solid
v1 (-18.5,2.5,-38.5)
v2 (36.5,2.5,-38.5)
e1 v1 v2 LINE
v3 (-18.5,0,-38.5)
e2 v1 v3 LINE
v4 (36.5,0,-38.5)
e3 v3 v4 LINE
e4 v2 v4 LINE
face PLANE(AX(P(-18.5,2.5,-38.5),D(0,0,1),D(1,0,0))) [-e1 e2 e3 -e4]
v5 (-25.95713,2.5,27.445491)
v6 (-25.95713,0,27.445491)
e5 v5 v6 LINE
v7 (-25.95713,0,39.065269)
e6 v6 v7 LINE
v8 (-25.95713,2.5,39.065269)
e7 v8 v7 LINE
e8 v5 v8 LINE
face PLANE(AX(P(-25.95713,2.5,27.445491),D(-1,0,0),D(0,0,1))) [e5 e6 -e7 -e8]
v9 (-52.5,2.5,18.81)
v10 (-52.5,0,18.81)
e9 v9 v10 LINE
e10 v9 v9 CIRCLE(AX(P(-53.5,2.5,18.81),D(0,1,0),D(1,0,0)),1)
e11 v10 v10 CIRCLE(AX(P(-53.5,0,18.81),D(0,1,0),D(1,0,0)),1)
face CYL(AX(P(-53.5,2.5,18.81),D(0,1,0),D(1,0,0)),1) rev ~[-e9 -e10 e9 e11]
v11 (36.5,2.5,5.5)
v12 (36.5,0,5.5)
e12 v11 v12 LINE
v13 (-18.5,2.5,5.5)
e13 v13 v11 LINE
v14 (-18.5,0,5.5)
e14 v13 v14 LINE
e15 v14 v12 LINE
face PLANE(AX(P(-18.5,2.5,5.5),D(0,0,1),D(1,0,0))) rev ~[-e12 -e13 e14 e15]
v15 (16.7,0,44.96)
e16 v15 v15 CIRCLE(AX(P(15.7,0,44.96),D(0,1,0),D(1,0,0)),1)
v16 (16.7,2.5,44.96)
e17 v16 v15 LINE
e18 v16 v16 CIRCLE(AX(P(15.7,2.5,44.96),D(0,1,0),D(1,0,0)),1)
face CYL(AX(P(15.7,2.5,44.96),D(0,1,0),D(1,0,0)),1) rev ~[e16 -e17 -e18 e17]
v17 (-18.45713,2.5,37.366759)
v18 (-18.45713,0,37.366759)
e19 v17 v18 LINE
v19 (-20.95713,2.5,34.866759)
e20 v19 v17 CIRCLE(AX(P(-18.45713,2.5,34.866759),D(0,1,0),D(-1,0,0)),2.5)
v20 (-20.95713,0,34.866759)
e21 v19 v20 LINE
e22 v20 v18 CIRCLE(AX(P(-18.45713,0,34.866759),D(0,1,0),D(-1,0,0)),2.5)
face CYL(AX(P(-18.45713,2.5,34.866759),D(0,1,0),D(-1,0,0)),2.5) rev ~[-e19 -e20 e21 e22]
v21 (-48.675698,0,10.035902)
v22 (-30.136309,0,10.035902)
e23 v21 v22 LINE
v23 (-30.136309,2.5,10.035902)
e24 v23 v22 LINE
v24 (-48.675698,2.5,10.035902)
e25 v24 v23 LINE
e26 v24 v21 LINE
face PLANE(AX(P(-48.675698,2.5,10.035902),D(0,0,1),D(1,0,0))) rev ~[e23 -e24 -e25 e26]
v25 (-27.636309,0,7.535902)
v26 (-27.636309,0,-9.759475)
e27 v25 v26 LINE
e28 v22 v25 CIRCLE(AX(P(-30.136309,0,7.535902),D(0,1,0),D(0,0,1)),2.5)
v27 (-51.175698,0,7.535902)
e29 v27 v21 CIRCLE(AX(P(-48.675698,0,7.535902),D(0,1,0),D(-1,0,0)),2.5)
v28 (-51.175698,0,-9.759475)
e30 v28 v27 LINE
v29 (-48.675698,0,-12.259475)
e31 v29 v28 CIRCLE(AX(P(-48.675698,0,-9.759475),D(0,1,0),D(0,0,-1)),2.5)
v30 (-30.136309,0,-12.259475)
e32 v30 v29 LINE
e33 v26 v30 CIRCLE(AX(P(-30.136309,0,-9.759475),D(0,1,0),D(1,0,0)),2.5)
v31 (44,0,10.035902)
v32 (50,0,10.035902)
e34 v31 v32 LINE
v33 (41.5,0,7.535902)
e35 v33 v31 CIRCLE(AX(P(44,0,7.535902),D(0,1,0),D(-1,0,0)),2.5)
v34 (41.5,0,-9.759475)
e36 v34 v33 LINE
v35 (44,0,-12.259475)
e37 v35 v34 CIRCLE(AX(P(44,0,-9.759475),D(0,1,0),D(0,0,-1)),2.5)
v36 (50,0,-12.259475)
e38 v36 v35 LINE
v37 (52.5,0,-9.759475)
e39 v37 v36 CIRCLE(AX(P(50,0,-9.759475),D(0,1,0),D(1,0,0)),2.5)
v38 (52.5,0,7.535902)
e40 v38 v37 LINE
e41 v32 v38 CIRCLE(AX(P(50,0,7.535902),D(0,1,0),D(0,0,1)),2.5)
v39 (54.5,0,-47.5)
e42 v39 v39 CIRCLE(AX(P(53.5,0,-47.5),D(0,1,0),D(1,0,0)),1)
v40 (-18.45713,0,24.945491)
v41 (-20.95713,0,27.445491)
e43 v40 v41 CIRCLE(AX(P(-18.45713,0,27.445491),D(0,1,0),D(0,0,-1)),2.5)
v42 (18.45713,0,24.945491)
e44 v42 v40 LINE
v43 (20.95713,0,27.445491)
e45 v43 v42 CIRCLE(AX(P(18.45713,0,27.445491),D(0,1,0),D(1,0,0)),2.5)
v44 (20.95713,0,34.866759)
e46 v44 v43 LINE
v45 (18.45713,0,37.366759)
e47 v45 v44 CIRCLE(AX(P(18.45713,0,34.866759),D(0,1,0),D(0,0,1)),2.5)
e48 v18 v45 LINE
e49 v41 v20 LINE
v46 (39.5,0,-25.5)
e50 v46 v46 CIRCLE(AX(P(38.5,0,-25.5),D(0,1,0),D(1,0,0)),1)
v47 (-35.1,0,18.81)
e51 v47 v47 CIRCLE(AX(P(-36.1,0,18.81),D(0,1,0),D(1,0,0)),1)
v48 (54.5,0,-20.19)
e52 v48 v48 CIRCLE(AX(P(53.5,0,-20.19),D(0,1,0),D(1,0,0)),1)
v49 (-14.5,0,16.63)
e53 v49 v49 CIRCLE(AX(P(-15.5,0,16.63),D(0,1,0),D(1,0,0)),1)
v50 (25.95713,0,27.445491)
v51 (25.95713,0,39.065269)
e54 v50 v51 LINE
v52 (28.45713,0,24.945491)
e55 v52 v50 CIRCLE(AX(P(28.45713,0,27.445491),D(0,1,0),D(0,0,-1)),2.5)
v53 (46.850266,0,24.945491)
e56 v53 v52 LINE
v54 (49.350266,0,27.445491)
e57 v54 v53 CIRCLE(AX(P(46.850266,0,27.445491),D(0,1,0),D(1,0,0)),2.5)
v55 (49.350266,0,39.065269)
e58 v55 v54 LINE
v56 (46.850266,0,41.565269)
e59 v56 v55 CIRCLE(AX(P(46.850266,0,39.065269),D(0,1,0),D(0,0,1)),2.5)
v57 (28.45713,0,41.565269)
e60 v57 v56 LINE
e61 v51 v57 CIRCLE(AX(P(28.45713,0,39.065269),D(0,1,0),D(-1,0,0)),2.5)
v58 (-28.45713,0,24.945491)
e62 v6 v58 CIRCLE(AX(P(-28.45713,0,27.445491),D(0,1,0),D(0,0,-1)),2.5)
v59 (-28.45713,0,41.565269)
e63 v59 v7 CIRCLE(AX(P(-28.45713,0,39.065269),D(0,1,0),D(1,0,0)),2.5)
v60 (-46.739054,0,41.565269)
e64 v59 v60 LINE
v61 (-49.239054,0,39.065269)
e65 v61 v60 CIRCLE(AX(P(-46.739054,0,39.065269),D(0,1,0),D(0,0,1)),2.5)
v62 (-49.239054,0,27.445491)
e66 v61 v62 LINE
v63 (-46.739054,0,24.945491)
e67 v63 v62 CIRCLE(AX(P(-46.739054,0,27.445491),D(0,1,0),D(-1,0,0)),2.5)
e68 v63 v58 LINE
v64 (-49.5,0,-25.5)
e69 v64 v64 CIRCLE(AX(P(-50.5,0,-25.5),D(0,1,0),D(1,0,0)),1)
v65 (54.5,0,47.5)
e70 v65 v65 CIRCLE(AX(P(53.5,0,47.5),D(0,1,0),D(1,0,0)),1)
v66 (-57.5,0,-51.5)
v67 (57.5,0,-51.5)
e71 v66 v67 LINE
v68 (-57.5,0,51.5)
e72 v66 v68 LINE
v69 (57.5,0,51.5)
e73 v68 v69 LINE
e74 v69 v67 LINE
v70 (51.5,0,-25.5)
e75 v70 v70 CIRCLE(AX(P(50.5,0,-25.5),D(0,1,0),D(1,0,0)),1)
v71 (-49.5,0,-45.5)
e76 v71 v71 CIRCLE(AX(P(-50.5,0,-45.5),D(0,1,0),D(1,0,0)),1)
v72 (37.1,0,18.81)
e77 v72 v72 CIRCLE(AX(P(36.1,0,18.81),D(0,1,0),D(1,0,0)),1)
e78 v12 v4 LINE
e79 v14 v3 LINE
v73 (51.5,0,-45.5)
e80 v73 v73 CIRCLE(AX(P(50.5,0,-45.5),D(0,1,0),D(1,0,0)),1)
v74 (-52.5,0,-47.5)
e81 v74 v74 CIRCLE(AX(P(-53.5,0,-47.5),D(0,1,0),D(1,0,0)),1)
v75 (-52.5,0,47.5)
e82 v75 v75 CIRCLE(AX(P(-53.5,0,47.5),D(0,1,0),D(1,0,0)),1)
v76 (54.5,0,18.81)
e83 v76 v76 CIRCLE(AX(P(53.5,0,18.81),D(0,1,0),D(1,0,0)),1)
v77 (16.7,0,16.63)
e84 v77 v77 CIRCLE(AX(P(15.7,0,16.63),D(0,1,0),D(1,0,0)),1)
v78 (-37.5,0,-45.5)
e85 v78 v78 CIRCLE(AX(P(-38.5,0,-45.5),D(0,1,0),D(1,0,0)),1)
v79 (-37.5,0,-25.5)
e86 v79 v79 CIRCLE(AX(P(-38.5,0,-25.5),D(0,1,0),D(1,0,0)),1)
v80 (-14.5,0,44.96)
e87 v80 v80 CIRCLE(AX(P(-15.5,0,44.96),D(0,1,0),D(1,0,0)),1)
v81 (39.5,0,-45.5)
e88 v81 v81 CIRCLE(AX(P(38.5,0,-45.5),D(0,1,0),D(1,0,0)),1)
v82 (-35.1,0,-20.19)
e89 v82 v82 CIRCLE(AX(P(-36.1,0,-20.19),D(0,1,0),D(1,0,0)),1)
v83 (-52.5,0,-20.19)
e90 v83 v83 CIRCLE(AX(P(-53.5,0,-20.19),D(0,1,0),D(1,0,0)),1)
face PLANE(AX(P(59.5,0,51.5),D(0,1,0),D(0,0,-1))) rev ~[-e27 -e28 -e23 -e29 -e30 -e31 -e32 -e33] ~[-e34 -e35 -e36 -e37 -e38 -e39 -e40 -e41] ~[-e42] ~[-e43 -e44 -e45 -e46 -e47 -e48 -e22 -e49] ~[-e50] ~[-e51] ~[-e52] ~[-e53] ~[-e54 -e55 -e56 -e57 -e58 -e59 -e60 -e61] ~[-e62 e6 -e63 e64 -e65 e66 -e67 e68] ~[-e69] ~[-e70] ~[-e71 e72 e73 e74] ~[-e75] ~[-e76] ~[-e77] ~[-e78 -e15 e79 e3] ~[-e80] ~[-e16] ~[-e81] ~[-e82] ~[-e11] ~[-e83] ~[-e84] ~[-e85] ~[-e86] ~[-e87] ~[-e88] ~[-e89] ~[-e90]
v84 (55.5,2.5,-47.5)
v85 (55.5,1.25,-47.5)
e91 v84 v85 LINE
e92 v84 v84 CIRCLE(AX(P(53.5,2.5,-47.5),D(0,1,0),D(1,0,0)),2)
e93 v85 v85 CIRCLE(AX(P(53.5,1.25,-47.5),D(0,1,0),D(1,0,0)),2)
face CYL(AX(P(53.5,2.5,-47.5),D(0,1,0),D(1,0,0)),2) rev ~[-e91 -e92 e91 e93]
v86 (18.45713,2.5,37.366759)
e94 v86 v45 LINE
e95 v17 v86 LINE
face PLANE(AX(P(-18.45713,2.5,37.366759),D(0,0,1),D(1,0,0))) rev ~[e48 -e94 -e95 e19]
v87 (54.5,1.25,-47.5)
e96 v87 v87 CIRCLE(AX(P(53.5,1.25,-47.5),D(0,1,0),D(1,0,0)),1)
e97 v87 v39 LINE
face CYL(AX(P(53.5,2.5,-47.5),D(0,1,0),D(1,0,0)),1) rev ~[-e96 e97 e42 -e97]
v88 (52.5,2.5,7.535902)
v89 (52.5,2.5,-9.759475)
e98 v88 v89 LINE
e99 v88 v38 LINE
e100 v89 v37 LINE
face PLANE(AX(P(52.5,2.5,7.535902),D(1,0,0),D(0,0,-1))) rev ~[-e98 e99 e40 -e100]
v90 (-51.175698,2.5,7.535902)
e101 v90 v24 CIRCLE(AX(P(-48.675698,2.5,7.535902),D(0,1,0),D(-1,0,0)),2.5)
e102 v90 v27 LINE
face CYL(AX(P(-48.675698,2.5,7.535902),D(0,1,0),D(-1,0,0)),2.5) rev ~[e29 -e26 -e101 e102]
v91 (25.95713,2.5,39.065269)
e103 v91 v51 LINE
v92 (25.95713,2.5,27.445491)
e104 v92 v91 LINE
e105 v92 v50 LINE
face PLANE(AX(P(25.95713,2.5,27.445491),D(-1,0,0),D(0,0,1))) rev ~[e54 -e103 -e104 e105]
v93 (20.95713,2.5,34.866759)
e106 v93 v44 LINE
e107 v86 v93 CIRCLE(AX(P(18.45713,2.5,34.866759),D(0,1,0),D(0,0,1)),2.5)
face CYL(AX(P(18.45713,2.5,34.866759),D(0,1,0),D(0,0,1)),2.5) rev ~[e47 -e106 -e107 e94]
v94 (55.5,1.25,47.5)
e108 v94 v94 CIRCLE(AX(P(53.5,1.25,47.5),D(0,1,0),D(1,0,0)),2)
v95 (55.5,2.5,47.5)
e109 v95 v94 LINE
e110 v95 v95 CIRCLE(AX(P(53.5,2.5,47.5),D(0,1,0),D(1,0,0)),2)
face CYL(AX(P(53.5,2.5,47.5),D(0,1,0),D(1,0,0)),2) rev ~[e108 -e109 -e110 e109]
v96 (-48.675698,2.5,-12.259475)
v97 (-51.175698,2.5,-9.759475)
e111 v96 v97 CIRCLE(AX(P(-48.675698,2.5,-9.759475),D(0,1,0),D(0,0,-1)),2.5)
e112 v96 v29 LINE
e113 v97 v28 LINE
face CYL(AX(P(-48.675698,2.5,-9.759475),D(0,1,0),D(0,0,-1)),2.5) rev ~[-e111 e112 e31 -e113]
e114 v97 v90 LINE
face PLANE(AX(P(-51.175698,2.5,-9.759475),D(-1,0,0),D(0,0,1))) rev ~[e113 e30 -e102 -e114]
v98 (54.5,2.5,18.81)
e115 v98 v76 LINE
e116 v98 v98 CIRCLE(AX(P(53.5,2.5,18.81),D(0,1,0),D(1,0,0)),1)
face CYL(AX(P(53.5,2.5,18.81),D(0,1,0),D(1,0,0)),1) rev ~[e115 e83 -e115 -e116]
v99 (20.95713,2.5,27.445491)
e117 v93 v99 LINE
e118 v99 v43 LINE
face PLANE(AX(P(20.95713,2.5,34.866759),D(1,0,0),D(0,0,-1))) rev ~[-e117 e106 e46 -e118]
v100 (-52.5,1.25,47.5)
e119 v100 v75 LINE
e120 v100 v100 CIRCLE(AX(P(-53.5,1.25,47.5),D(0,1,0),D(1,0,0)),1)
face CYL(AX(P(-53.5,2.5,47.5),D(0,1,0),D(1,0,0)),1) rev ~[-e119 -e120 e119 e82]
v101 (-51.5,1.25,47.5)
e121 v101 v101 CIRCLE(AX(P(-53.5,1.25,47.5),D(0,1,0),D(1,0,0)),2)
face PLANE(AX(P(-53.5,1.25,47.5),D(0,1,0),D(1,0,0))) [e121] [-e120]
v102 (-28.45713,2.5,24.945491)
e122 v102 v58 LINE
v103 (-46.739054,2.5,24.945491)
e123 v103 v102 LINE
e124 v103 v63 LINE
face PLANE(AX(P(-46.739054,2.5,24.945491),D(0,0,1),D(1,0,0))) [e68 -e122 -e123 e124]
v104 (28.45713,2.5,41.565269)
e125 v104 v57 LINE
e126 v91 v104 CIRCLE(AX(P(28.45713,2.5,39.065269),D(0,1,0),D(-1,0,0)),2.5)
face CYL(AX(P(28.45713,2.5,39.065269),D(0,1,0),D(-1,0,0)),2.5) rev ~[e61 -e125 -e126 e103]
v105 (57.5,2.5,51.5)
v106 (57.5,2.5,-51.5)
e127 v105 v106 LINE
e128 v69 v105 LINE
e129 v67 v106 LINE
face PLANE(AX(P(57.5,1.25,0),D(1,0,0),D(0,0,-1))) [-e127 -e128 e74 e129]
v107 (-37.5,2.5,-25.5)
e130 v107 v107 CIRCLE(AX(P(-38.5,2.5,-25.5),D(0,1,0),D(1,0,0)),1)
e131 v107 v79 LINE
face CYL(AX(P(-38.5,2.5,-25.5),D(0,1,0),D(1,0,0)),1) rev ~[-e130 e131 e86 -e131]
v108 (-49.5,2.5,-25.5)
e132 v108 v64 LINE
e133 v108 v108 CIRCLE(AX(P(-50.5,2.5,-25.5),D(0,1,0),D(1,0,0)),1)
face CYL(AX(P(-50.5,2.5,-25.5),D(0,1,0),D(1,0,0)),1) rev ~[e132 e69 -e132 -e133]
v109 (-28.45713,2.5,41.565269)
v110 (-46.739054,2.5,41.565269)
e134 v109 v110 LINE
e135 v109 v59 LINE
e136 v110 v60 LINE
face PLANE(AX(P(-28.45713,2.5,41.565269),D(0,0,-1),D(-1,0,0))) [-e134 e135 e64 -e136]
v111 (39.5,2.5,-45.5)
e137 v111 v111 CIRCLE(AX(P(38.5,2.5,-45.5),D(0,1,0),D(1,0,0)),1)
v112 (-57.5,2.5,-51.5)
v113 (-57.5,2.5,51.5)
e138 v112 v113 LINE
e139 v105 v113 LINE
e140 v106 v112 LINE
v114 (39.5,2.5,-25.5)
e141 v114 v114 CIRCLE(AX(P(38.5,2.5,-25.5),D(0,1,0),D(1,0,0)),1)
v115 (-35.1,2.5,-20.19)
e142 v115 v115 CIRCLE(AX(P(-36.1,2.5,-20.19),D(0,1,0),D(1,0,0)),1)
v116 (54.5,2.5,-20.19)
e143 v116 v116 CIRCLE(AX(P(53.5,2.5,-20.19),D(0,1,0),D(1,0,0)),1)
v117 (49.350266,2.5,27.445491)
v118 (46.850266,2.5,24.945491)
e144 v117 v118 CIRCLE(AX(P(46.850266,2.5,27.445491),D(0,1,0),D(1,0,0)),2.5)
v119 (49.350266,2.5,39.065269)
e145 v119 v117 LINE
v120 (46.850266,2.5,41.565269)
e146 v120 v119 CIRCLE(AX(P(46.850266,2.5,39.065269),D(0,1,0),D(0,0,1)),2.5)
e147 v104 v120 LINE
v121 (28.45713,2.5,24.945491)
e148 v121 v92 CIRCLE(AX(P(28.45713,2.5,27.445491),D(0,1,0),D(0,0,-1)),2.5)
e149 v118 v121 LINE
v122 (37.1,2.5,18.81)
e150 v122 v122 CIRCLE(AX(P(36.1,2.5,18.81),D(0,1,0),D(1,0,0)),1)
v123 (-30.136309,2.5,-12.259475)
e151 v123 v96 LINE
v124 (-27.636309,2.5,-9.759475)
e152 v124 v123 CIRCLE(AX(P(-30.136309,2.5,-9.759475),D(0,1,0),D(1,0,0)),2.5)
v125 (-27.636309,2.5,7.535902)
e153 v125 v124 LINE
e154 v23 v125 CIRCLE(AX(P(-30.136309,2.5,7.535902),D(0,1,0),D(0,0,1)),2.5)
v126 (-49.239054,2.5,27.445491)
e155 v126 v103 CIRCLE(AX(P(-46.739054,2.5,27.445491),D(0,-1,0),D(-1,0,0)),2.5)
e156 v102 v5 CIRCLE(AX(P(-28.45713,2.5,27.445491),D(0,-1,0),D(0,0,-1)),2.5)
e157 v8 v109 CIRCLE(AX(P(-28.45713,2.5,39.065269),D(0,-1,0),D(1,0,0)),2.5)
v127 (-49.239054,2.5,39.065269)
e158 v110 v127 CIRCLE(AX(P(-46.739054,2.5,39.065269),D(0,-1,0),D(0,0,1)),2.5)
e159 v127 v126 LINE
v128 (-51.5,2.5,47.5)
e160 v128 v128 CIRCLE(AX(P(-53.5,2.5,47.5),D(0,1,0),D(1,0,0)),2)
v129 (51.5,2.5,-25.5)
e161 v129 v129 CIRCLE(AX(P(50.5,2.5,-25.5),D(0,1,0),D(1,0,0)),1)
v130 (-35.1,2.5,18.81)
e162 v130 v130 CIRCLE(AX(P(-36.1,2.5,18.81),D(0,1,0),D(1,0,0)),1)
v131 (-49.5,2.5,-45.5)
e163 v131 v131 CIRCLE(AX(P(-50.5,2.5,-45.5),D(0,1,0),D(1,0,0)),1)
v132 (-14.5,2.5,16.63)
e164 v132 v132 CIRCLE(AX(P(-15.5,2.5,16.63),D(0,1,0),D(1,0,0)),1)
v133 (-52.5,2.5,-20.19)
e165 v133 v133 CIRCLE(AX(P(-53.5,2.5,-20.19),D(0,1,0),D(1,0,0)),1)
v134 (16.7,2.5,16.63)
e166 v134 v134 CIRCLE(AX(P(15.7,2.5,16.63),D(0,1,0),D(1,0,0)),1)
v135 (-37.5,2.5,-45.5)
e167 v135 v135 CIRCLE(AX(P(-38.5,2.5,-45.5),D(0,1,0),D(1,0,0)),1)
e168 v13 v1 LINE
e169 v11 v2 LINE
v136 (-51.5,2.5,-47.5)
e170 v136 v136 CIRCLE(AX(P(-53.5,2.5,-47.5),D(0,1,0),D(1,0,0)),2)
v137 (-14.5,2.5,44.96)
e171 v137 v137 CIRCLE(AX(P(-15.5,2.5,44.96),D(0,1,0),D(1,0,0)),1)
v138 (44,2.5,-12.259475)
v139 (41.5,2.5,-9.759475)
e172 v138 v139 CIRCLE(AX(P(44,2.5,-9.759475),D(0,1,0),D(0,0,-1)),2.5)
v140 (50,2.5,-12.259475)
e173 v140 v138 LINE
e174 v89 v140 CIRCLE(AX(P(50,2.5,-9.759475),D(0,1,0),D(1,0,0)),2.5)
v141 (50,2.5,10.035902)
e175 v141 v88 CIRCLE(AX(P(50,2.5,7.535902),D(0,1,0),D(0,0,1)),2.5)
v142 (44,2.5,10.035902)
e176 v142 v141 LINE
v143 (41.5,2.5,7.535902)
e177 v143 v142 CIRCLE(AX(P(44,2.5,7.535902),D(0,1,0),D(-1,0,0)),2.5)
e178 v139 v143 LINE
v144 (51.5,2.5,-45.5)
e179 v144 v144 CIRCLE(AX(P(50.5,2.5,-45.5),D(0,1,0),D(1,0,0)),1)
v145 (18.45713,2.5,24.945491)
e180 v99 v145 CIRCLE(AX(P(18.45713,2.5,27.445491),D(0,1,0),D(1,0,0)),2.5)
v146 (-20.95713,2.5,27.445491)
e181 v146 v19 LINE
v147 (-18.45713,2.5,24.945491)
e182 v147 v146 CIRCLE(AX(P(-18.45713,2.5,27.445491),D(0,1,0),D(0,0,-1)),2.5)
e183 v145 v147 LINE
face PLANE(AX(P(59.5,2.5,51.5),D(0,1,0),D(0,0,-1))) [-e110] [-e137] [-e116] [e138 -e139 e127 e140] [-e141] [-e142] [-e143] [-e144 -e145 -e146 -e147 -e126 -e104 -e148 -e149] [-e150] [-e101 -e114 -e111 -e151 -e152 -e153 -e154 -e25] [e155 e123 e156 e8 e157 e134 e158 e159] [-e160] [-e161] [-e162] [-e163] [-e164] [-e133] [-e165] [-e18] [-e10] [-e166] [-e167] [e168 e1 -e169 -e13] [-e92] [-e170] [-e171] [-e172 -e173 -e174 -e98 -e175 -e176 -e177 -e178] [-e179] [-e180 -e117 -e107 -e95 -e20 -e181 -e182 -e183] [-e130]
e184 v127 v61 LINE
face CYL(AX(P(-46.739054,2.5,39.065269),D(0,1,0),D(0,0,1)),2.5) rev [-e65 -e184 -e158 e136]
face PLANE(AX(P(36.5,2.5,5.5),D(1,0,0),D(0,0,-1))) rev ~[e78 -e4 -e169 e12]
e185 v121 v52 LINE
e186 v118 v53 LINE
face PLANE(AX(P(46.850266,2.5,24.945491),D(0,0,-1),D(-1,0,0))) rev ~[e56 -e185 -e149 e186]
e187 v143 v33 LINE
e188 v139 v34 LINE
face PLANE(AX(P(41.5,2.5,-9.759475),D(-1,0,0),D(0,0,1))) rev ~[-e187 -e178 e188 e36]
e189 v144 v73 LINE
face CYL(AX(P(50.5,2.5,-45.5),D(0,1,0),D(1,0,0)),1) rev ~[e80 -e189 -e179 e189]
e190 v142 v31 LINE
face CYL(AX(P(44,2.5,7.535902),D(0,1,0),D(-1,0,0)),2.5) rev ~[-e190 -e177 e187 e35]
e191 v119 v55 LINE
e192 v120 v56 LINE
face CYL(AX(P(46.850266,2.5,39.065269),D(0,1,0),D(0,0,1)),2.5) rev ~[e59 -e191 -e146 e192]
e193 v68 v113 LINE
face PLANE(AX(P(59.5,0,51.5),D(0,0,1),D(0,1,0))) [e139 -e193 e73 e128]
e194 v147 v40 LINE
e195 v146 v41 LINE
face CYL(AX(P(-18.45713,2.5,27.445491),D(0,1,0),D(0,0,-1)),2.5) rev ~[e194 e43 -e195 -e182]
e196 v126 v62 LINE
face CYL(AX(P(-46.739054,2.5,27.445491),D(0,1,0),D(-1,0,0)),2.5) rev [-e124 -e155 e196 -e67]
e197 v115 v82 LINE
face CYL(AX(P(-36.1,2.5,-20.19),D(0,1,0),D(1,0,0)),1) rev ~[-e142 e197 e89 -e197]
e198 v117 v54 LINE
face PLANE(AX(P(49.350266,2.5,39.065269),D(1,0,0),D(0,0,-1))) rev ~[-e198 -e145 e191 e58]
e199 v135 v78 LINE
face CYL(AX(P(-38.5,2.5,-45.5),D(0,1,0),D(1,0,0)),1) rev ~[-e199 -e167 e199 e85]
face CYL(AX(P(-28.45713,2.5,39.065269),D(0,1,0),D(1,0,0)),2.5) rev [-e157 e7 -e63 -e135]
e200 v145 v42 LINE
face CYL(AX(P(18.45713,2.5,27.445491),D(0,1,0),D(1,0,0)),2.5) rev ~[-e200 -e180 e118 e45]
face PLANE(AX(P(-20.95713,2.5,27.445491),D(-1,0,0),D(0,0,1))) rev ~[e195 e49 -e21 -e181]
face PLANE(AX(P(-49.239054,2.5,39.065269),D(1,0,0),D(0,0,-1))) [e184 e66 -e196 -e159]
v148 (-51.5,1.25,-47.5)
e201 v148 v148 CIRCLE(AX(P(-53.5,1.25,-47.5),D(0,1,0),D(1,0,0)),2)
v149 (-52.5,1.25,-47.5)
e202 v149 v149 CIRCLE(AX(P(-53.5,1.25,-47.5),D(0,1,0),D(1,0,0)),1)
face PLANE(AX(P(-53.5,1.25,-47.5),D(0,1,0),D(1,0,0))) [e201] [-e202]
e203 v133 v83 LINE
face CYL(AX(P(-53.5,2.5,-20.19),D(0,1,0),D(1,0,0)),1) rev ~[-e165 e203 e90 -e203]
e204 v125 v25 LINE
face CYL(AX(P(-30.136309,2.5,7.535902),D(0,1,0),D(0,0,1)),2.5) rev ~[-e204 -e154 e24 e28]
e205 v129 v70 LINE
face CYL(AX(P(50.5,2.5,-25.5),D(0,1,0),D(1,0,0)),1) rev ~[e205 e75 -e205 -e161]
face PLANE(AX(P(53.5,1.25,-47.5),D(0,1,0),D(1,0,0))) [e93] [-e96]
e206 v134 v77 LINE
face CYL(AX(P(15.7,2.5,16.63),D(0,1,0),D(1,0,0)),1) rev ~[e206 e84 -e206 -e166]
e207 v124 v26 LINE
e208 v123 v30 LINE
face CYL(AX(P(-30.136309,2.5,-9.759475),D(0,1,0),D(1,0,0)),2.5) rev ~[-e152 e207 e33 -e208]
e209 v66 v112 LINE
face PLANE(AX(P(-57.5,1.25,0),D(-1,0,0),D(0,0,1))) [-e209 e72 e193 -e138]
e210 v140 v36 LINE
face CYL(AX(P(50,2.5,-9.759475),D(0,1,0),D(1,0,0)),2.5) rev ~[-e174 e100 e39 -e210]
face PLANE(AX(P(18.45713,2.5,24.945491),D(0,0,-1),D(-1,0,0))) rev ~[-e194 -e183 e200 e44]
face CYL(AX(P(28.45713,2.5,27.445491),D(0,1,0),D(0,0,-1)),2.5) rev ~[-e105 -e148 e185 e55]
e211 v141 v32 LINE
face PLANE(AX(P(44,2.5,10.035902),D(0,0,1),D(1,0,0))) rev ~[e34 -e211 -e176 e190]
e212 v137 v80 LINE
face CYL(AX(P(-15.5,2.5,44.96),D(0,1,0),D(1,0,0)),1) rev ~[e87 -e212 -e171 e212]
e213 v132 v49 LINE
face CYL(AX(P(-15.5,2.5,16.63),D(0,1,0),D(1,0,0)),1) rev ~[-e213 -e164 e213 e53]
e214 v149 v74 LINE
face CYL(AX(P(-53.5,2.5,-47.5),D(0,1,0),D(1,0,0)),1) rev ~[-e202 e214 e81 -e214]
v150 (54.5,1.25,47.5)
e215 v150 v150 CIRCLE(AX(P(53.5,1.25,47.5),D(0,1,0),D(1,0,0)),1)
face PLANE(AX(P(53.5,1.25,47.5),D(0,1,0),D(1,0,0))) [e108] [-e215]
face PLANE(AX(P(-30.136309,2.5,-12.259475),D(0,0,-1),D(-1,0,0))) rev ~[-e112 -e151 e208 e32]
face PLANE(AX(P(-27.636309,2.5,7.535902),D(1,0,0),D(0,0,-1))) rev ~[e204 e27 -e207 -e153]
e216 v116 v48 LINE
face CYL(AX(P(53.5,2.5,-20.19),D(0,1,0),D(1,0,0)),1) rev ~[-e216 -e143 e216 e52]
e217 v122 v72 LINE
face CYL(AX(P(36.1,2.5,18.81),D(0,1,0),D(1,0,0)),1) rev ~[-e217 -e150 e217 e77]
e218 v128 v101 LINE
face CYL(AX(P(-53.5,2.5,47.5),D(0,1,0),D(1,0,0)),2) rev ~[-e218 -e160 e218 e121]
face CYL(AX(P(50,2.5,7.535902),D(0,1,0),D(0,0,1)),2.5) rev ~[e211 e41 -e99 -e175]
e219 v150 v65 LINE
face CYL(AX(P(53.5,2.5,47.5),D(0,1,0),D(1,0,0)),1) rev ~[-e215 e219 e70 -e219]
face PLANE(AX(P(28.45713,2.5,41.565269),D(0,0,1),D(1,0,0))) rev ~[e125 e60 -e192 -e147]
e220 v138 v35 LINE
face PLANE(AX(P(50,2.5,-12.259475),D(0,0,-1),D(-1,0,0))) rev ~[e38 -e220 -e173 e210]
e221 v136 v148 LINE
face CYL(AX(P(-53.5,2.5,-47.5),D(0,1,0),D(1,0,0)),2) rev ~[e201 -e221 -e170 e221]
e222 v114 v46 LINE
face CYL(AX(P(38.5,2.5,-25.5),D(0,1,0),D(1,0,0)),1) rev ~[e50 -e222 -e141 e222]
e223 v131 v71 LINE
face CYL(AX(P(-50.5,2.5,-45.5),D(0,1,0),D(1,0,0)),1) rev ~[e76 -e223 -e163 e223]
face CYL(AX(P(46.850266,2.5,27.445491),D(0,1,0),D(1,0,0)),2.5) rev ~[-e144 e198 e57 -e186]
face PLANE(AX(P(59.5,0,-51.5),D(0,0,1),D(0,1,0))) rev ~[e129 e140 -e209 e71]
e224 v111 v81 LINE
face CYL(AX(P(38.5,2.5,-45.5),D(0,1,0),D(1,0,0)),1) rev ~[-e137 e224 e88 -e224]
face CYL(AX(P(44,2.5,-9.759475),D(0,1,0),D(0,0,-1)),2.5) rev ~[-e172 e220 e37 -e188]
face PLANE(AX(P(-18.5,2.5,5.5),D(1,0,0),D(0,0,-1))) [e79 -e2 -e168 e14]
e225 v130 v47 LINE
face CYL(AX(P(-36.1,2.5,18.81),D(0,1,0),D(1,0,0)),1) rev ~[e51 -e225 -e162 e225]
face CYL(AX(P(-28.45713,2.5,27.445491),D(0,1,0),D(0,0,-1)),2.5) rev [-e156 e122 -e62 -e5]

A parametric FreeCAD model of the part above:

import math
import FreeCAD as App
import Part
import Sketcher
Q = App.Units.Quantity


def add_polygon(sketch, points):
    """Adds a closed chain of lines whose ends are joined by coincident constraints."""
    first, n = sketch.GeometryCount, len(points)
    for a, b in zip(points, points[1:] + points[:1]):
        sketch.addGeometry(Part.LineSegment(App.Vector(*a, 0), App.Vector(*b, 0)), False)
    for i in range(n):
        sketch.addConstraint(Sketcher.Constraint("Coincident", first + i, 2, first + (i + 1) % n, 1))

doc = App.newDocument("Part")
params = doc.addObject("Spreadsheet::Sheet", "Params")
for row, (alias, value) in enumerate([
    ("sketch1_width", "119 mm"),
    ("sketch1_height", "103 mm"),
    ("pad1_length", "2.5 mm"),
    ("sketch2_width", "55 mm"),
    ("sketch2_height", "44 mm"),
    ("pocket1_length", "10 mm"),
    ("sketch3_height", "103 mm"),
    ("sketch3_width", "2.5 mm"),
    ("pad2_length", "1.5 mm"),
    ("sketch4_height", "103 mm"),
    ("sketch4_width", "2.5 mm"),
    ("pad3_length", "1.5 mm"),
    ("sketch5_height", "103 mm"),
    ("sketch5_width", "2.5 mm"),
    ("pocket2_length", "3.5 mm"),
    ("sketch6_height", "103 mm"),
    ("sketch6_width", "2.5 mm"),
    ("pocket3_length", "3.5 mm"),
    ("sketch7_diameter", "2 mm"),
    ("pocket4_length", "10 mm"),
    ("sketch8_diameter", "2 mm"),
    ("pocket5_length", "10 mm"),
    ("sketch9_diameter", "4 mm"),
    ("pocket6_length", "1.25 mm"),
    ("sketch10_diameter", "2 mm"),
    ("pocket7_length", "11 mm"),
    ("sketch11_radius", "2.5 mm"),
    ("sketch11_width", "6 mm"),
    ("pocket8_length", "11 mm"),
], start=1):
    params.set(f"A{row}", alias)
    params.set(f"B{row}", "=" + value)
    params.setAlias(f"B{row}", alias)

body = doc.addObject("PartDesign::Body", "Body")

# Sketch on XZ plane
sketch1 = body.newObject("Sketcher::SketchObject", "Sketch")
sketch1.AttachmentSupport = (doc.getObject("XZ_Plane"), [""])
sketch1.MapMode = "FlatFace"
add_polygon(sketch1, [(-59.5, -51.5), (-59.5, 51.5), (59.5, 51.5), (59.5, -51.5)])  # lines 0-3
sketch1.addConstraint([
    Sketcher.Constraint("Vertical", 0),
    Sketcher.Constraint("Horizontal", 1),
    Sketcher.Constraint("Vertical", 2),
    Sketcher.Constraint("Horizontal", 3),
    Sketcher.Constraint("Symmetric", 0, 2, 2, 2, -1, 1),
    Sketcher.Constraint("DistanceX", 1, 1, 1, 2, Q("119 mm")),
    Sketcher.Constraint("DistanceY", 0, 1, 0, 2, Q("103 mm")),
])
sketch1.setExpression("Constraints[9]", "Params.sketch1_width")
sketch1.setExpression("Constraints[10]", "Params.sketch1_height")
pad1 = body.newObject("PartDesign::Pad", "Pad")
pad1.Profile = sketch1
pad1.setExpression("Length", "Params.pad1_length")
pad1.Reversed = True

# Sketch on XZ plane
sketch2 = body.newObject("Sketcher::SketchObject", "Sketch001")
sketch2.AttachmentSupport = (doc.getObject("XZ_Plane"), [""])
sketch2.MapMode = "FlatFace"
sketch2.AttachmentOffset = App.Placement(App.Vector(0, 0, -2.5), App.Rotation())
add_polygon(sketch2, [(-18.5, -38.5), (-18.5, 5.5), (36.5, 5.5), (36.5, -38.5)])  # lines 0-3
sketch2.addConstraint([
    Sketcher.Constraint("Vertical", 0),
    Sketcher.Constraint("Horizontal", 1),
    Sketcher.Constraint("Vertical", 2),
    Sketcher.Constraint("Horizontal", 3),
    Sketcher.Constraint("DistanceX", 1, 1, 1, 2, Q("55 mm")),
    Sketcher.Constraint("DistanceY", 0, 1, 0, 2, Q("44 mm")),
    Sketcher.Constraint("DistanceX", 0, 2, -1, 1, Q("18.5 mm")),
    Sketcher.Constraint("DistanceY", -1, 1, 0, 2, Q("5.5 mm")),
])
sketch2.setExpression("Constraints[8]", "Params.sketch2_width")
sketch2.setExpression("Constraints[9]", "Params.sketch2_height")
pocket1 = body.newObject("PartDesign::Pocket", "Pocket")
pocket1.Profile = sketch2
pocket1.setExpression("Length", "Params.pocket1_length")
pocket1.Reversed = True

# Sketch on YZ plane
sketch3 = body.newObject("Sketcher::SketchObject", "Sketch002")
sketch3.AttachmentSupport = (doc.getObject("YZ_Plane"), [""])
sketch3.MapMode = "FlatFace"
sketch3.AttachmentOffset = App.Placement(App.Vector(0, 0, -59.5), App.Rotation())
add_polygon(sketch3, [(2.5, -51.5), (0, -51.5), (0, 51.5), (2.5, 51.5)])  # lines 0-3
sketch3.addConstraint([
    Sketcher.Constraint("Horizontal", 0),
    Sketcher.Constraint("Vertical", 1),
    Sketcher.Constraint("Horizontal", 2),
    Sketcher.Constraint("Vertical", 3),
    Sketcher.Constraint("Symmetric", 0, 2, 1, 2, -1, 1),
    Sketcher.Constraint("DistanceY", 1, 1, 1, 2, Q("103 mm")),
    Sketcher.Constraint("DistanceX", 0, 2, 0, 1, Q("2.5 mm")),
])
sketch3.setExpression("Constraints[9]", "Params.sketch3_height")
sketch3.setExpression("Constraints[10]", "Params.sketch3_width")
pad2 = body.newObject("PartDesign::Pad", "Pad001")
pad2.Profile = sketch3
pad2.setExpression("Length", "Params.pad2_length")
pad2.Reversed = True

# Sketch on YZ plane
sketch4 = body.newObject("Sketcher::SketchObject", "Sketch003")
sketch4.AttachmentSupport = (doc.getObject("YZ_Plane"), [""])
sketch4.MapMode = "FlatFace"
sketch4.AttachmentOffset = App.Placement(App.Vector(0, 0, 59.5), App.Rotation())
add_polygon(sketch4, [(2.5, 51.5), (0, 51.5), (0, -51.5), (2.5, -51.5)])  # lines 0-3
sketch4.addConstraint([
    Sketcher.Constraint("Horizontal", 0),
    Sketcher.Constraint("Vertical", 1),
    Sketcher.Constraint("Horizontal", 2),
    Sketcher.Constraint("Vertical", 3),
    Sketcher.Constraint("Symmetric", 0, 2, 1, 2, -1, 1),
    Sketcher.Constraint("DistanceY", 1, 2, 1, 1, Q("103 mm")),
    Sketcher.Constraint("DistanceX", 0, 2, 0, 1, Q("2.5 mm")),
])
sketch4.setExpression("Constraints[9]", "Params.sketch4_height")
sketch4.setExpression("Constraints[10]", "Params.sketch4_width")
pad3 = body.newObject("PartDesign::Pad", "Pad002")
pad3.Profile = sketch4
pad3.setExpression("Length", "Params.pad3_length")

# Sketch on YZ plane
sketch5 = body.newObject("Sketcher::SketchObject", "Sketch004")
sketch5.AttachmentSupport = (doc.getObject("YZ_Plane"), [""])
sketch5.MapMode = "FlatFace"
sketch5.AttachmentOffset = App.Placement(App.Vector(0, 0, -61), App.Rotation())
add_polygon(sketch5, [(2.5, -51.5), (0, -51.5), (0, 51.5), (2.5, 51.5)])  # lines 0-3
sketch5.addConstraint([
    Sketcher.Constraint("Horizontal", 0),
    Sketcher.Constraint("Vertical", 1),
    Sketcher.Constraint("Horizontal", 2),
    Sketcher.Constraint("Vertical", 3),
    Sketcher.Constraint("Symmetric", 0, 2, 1, 2, -1, 1),
    Sketcher.Constraint("DistanceY", 1, 1, 1, 2, Q("103 mm")),
    Sketcher.Constraint("DistanceX", 0, 2, 0, 1, Q("2.5 mm")),
])
sketch5.setExpression("Constraints[9]", "Params.sketch5_height")
sketch5.setExpression("Constraints[10]", "Params.sketch5_width")
pocket2 = body.newObject("PartDesign::Pocket", "Pocket001")
pocket2.Profile = sketch5
pocket2.setExpression("Length", "Params.pocket2_length")
pocket2.Reversed = True

# Sketch on YZ plane
sketch6 = body.newObject("Sketcher::SketchObject", "Sketch005")
sketch6.AttachmentSupport = (doc.getObject("YZ_Plane"), [""])
sketch6.MapMode = "FlatFace"
sketch6.AttachmentOffset = App.Placement(App.Vector(0, 0, 61), App.Rotation())
add_polygon(sketch6, [(2.5, 51.5), (0, 51.5), (0, -51.5), (2.5, -51.5)])  # lines 0-3
sketch6.addConstraint([
    Sketcher.Constraint("Horizontal", 0),
    Sketcher.Constraint("Vertical", 1),
    Sketcher.Constraint("Horizontal", 2),
    Sketcher.Constraint("Vertical", 3),
    Sketcher.Constraint("Symmetric", 0, 2, 1, 2, -1, 1),
    Sketcher.Constraint("DistanceY", 1, 2, 1, 1, Q("103 mm")),
    Sketcher.Constraint("DistanceX", 0, 2, 0, 1, Q("2.5 mm")),
])
sketch6.setExpression("Constraints[9]", "Params.sketch6_height")
sketch6.setExpression("Constraints[10]", "Params.sketch6_width")
pocket3 = body.newObject("PartDesign::Pocket", "Pocket002")
pocket3.Profile = sketch6
pocket3.setExpression("Length", "Params.pocket3_length")

# Sketch on XZ plane
sketch7 = body.newObject("Sketcher::SketchObject", "Sketch006")
sketch7.AttachmentSupport = (doc.getObject("XZ_Plane"), [""])
sketch7.MapMode = "FlatFace"
sketch7.AttachmentOffset = App.Placement(App.Vector(0, 0, -2.5), App.Rotation())
sketch7.addGeometry([
    Part.Circle(App.Vector(-15.5, 44.96, 0), App.Vector(0, 0, 1), 1),  # 0
    Part.Circle(App.Vector(15.7, 44.96, 0), App.Vector(0, 0, 1), 1),  # 1
    Part.Circle(App.Vector(-15.5, 16.63, 0), App.Vector(0, 0, 1), 1),  # 2
    Part.Circle(App.Vector(15.7, 16.63, 0), App.Vector(0, 0, 1), 1),  # 3
    Part.Circle(App.Vector(-53.5, 18.81, 0), App.Vector(0, 0, 1), 1),  # 4
    Part.Circle(App.Vector(-36.1, 18.81, 0), App.Vector(0, 0, 1), 1),  # 5
    Part.Circle(App.Vector(-53.5, -20.19, 0), App.Vector(0, 0, 1), 1),  # 6
    Part.Circle(App.Vector(-36.1, -20.19, 0), App.Vector(0, 0, 1), 1),  # 7
    Part.Circle(App.Vector(36.1, 18.81, 0), App.Vector(0, 0, 1), 1),  # 8
    Part.Circle(App.Vector(53.5, 18.81, 0), App.Vector(0, 0, 1), 1),  # 9
    Part.Circle(App.Vector(53.5, -20.19, 0), App.Vector(0, 0, 1), 1),  # 10
], False)
sketch7.addConstraint([
    Sketcher.Constraint("Equal", 0, 1),
    Sketcher.Constraint("Equal", 1, 2),
    Sketcher.Constraint("Equal", 2, 3),
    Sketcher.Constraint("Equal", 3, 4),
    Sketcher.Constraint("Equal", 4, 5),
    Sketcher.Constraint("Equal", 5, 6),
    Sketcher.Constraint("Equal", 6, 7),
    Sketcher.Constraint("Equal", 7, 8),
    Sketcher.Constraint("Equal", 8, 9),
    Sketcher.Constraint("Equal", 9, 10),
    Sketcher.Constraint("Symmetric", 5, 3, 8, 3, -2),
    Sketcher.Constraint("Symmetric", 4, 3, 9, 3, -2),
    Sketcher.Constraint("Symmetric", 6, 3, 10, 3, -2),
    Sketcher.Constraint("Horizontal", 0, 3, 1, 3),
    Sketcher.Constraint("Horizontal", 2, 3, 3, 3),
    Sketcher.Constraint("Horizontal", 4, 3, 5, 3),
    Sketcher.Constraint("Horizontal", 6, 3, 7, 3),
    Sketcher.Constraint("Vertical", 0, 3, 2, 3),
    Sketcher.Constraint("Vertical", 1, 3, 3, 3),
    Sketcher.Constraint("Vertical", 4, 3, 6, 3),
    Sketcher.Constraint("Vertical", 5, 3, 7, 3),
    Sketcher.Constraint("Diameter", 0, Q("2 mm")),
    Sketcher.Constraint("DistanceX", 4, 3, 2, 3, Q("38 mm")),
    Sketcher.Constraint("DistanceY", 6, 3, 4, 3, Q("39 mm")),
    Sketcher.Constraint("DistanceX", 2, 3, 9, 3, Q("69 mm")),
    Sketcher.Constraint("DistanceX", -1, 1, 1, 3, Q("15.7 mm")),
    Sketcher.Constraint("DistanceX", 5, 3, -1, 1, Q("36.1 mm")),
    Sketcher.Constraint("DistanceY", -1, 1, 0, 3, Q("44.96 mm")),
    Sketcher.Constraint("DistanceY", -1, 1, 2, 3, Q("16.63 mm")),
    Sketcher.Constraint("DistanceY", -1, 1, 4, 3, Q("18.81 mm")),
])
sketch7.setExpression("Constraints[21]", "Params.sketch7_diameter")
pocket4 = body.newObject("PartDesign::Pocket", "Pocket003")
pocket4.Profile = sketch7
pocket4.setExpression("Length", "Params.pocket4_length")
pocket4.Reversed = True

# Sketch on XZ plane
sketch8 = body.newObject("Sketcher::SketchObject", "Sketch007")
sketch8.AttachmentSupport = (doc.getObject("XZ_Plane"), [""])
sketch8.MapMode = "FlatFace"
sketch8.AttachmentOffset = App.Placement(App.Vector(0, 0, -2.5), App.Rotation())
sketch8.addGeometry([
    Part.Circle(App.Vector(-53.5, -47.5, 0), App.Vector(0, 0, 1), 1),
    Part.Circle(App.Vector(53.5, 47.5, 0), App.Vector(0, 0, 1), 1),
    Part.Circle(App.Vector(53.5, -47.5, 0), App.Vector(0, 0, 1), 1),
    Part.Circle(App.Vector(-53.5, 47.5, 0), App.Vector(0, 0, 1), 1),
], False)
sketch8.addConstraint([
    Sketcher.Constraint("Equal", 0, 1),
    Sketcher.Constraint("Equal", 1, 2),
    Sketcher.Constraint("Equal", 2, 3),
    Sketcher.Constraint("Symmetric", 0, 3, 1, 3, -1, 1),
    Sketcher.Constraint("Symmetric", 2, 3, 3, 3, -1, 1),
    Sketcher.Constraint("Symmetric", 0, 3, 2, 3, -2),
    Sketcher.Constraint("Diameter", 0, Q("2 mm")),
    Sketcher.Constraint("DistanceX", 0, 3, 1, 3, Q("107 mm")),
    Sketcher.Constraint("DistanceY", 0, 3, 1, 3, Q("95 mm")),
])
sketch8.setExpression("Constraints[6]", "Params.sketch8_diameter")
pocket5 = body.newObject("PartDesign::Pocket", "Pocket004")
pocket5.Profile = sketch8
pocket5.setExpression("Length", "Params.pocket5_length")
pocket5.Reversed = True

# Sketch on XZ plane
sketch9 = body.newObject("Sketcher::SketchObject", "Sketch008")
sketch9.AttachmentSupport = (doc.getObject("XZ_Plane"), [""])
sketch9.MapMode = "FlatFace"
sketch9.AttachmentOffset = App.Placement(App.Vector(0, 0, -2.5), App.Rotation())
sketch9.addGeometry([
    Part.Circle(App.Vector(-53.5, -47.5, 0), App.Vector(0, 0, 1), 2),
    Part.Circle(App.Vector(-53.5, 47.5, 0), App.Vector(0, 0, 1), 2),
    Part.Circle(App.Vector(53.5, 47.5, 0), App.Vector(0, 0, 1), 2),
    Part.Circle(App.Vector(53.5, -47.5, 0), App.Vector(0, 0, 1), 2),
], False)
sketch9.addConstraint([
    Sketcher.Constraint("Equal", 0, 1),
    Sketcher.Constraint("Equal", 1, 2),
    Sketcher.Constraint("Equal", 2, 3),
    Sketcher.Constraint("Symmetric", 0, 3, 2, 3, -1, 1),
    Sketcher.Constraint("Symmetric", 1, 3, 3, 3, -1, 1),
    Sketcher.Constraint("Symmetric", 1, 3, 2, 3, -2),
    Sketcher.Constraint("Diameter", 0, Q("4 mm")),
    Sketcher.Constraint("DistanceY", 0, 3, 1, 3, Q("95 mm")),
    Sketcher.Constraint("DistanceX", 1, 3, 2, 3, Q("107 mm")),
])
sketch9.setExpression("Constraints[6]", "Params.sketch9_diameter")
pocket6 = body.newObject("PartDesign::Pocket", "Pocket005")
pocket6.Profile = sketch9
pocket6.setExpression("Length", "Params.pocket6_length")
pocket6.Reversed = True

# Sketch on XZ plane
sketch10 = body.newObject("Sketcher::SketchObject", "Sketch009")
sketch10.AttachmentSupport = (doc.getObject("XZ_Plane"), [""])
sketch10.MapMode = "FlatFace"
sketch10.AttachmentOffset = App.Placement(App.Vector(0, 0, -2.5), App.Rotation())
sketch10.addGeometry([
    Part.Circle(App.Vector(-50.5, -45.5, 0), App.Vector(0, 0, 1), 1),  # 0
    Part.Circle(App.Vector(-50.5, -25.5, 0), App.Vector(0, 0, 1), 1),  # 1
    Part.Circle(App.Vector(-38.5, -45.5, 0), App.Vector(0, 0, 1), 1),  # 2
    Part.Circle(App.Vector(-38.5, -25.5, 0), App.Vector(0, 0, 1), 1),  # 3
    Part.Circle(App.Vector(50.5, -25.5, 0), App.Vector(0, 0, 1), 1),  # 4
    Part.Circle(App.Vector(38.5, -25.5, 0), App.Vector(0, 0, 1), 1),  # 5
    Part.Circle(App.Vector(38.5, -45.5, 0), App.Vector(0, 0, 1), 1),  # 6
    Part.Circle(App.Vector(50.5, -45.5, 0), App.Vector(0, 0, 1), 1),  # 7
], False)
sketch10.addConstraint([
    Sketcher.Constraint("Equal", 0, 1),
    Sketcher.Constraint("Equal", 1, 2),
    Sketcher.Constraint("Equal", 2, 3),
    Sketcher.Constraint("Equal", 3, 4),
    Sketcher.Constraint("Equal", 4, 5),
    Sketcher.Constraint("Equal", 5, 6),
    Sketcher.Constraint("Equal", 6, 7),
    Sketcher.Constraint("Symmetric", 1, 3, 4, 3, -2),
    Sketcher.Constraint("Symmetric", 3, 3, 5, 3, -2),
    Sketcher.Constraint("Symmetric", 2, 3, 6, 3, -2),
    Sketcher.Constraint("Symmetric", 0, 3, 7, 3, -2),
    Sketcher.Constraint("Horizontal", 0, 3, 2, 3),
    Sketcher.Constraint("Horizontal", 1, 3, 3, 3),
    Sketcher.Constraint("Vertical", 0, 3, 1, 3),
    Sketcher.Constraint("Vertical", 2, 3, 3, 3),
    Sketcher.Constraint("Diameter", 0, Q("2 mm")),
    Sketcher.Constraint("DistanceY", 0, 3, 1, 3, Q("20 mm")),
    Sketcher.Constraint("DistanceX", 0, 3, 2, 3, Q("12 mm")),
    Sketcher.Constraint("DistanceX", 3, 3, 4, 3, Q("89 mm")),
    Sketcher.Constraint("DistanceY", 0, 3, -1, 1, Q("45.5 mm")),
])
sketch10.setExpression("Constraints[15]", "Params.sketch10_diameter")
pocket7 = body.newObject("PartDesign::Pocket", "Pocket006")
pocket7.Profile = sketch10
pocket7.setExpression("Length", "Params.pocket7_length")
pocket7.Reversed = True

# Sketch on XZ plane
sketch11 = body.newObject("Sketcher::SketchObject", "Sketch010")
sketch11.AttachmentSupport = (doc.getObject("XZ_Plane"), [""])
sketch11.MapMode = "FlatFace"
sketch11.AttachmentOffset = App.Placement(App.Vector(0, 0, -2.5), App.Rotation())
sketch11.addGeometry([
    Part.LineSegment(App.Vector(-28.45713, 24.945491, 0), App.Vector(-46.739054, 24.945491, 0)),  # 0
    Part.ArcOfCircle(Part.Circle(App.Vector(-46.739054, 27.445491, 0), App.Vector(0, 0, 1), 2.5), math.radians(180), math.radians(270)),  # 1
    Part.LineSegment(App.Vector(-49.239054, 27.445491, 0), App.Vector(-49.239054, 39.065269, 0)),  # 2
    Part.ArcOfCircle(Part.Circle(App.Vector(-46.739054, 39.065269, 0), App.Vector(0, 0, 1), 2.5), math.radians(90), math.radians(180)),  # 3
    Part.LineSegment(App.Vector(-46.739054, 41.565269, 0), App.Vector(-28.45713, 41.565269, 0)),  # 4
    Part.ArcOfCircle(Part.Circle(App.Vector(-28.45713, 39.065269, 0), App.Vector(0, 0, 1), 2.5), math.radians(0), math.radians(90)),  # 5
    Part.LineSegment(App.Vector(-25.95713, 39.065269, 0), App.Vector(-25.95713, 27.445491, 0)),  # 6
    Part.ArcOfCircle(Part.Circle(App.Vector(-28.45713, 27.445491, 0), App.Vector(0, 0, 1), 2.5), math.radians(-90), math.radians(0)),  # 7
    Part.LineSegment(App.Vector(-48.675698, 10.035902, 0), App.Vector(-30.136309, 10.035902, 0)),  # 8
    Part.ArcOfCircle(Part.Circle(App.Vector(-30.136309, 7.535902, 0), App.Vector(0, 0, 1), 2.5), math.radians(0), math.radians(90)),  # 9
    Part.LineSegment(App.Vector(-27.636309, 7.535902, 0), App.Vector(-27.636309, -9.759475, 0)),  # 10
    Part.ArcOfCircle(Part.Circle(App.Vector(-30.136309, -9.759475, 0), App.Vector(0, 0, 1), 2.5), math.radians(-90), math.radians(0)),  # 11
    Part.LineSegment(App.Vector(-30.136309, -12.259475, 0), App.Vector(-48.675698, -12.259475, 0)),  # 12
    Part.ArcOfCircle(Part.Circle(App.Vector(-48.675698, -9.759475, 0), App.Vector(0, 0, 1), 2.5), math.radians(180), math.radians(270)),  # 13
    Part.LineSegment(App.Vector(-51.175698, -9.759475, 0), App.Vector(-51.175698, 7.535902, 0)),  # 14
    Part.ArcOfCircle(Part.Circle(App.Vector(-48.675698, 7.535902, 0), App.Vector(0, 0, 1), 2.5), math.radians(90), math.radians(180)),  # 15
    Part.LineSegment(App.Vector(-20.95713, 27.445491, 0), App.Vector(-20.95713, 34.866759, 0)),  # 16
    Part.ArcOfCircle(Part.Circle(App.Vector(-18.45713, 34.866759, 0), App.Vector(0, 0, 1), 2.5), math.radians(90), math.radians(180)),  # 17
    Part.LineSegment(App.Vector(-18.45713, 37.366759, 0), App.Vector(18.45713, 37.366759, 0)),  # 18
    Part.ArcOfCircle(Part.Circle(App.Vector(18.45713, 34.866759, 0), App.Vector(0, 0, 1), 2.5), math.radians(0), math.radians(90)),  # 19
    Part.LineSegment(App.Vector(20.95713, 34.866759, 0), App.Vector(20.95713, 27.445491, 0)),  # 20
    Part.ArcOfCircle(Part.Circle(App.Vector(18.45713, 27.445491, 0), App.Vector(0, 0, 1), 2.5), math.radians(-90), math.radians(0)),  # 21
    Part.LineSegment(App.Vector(18.45713, 24.945491, 0), App.Vector(-18.45713, 24.945491, 0)),  # 22
    Part.ArcOfCircle(Part.Circle(App.Vector(-18.45713, 27.445491, 0), App.Vector(0, 0, 1), 2.5), math.radians(180), math.radians(270)),  # 23
    Part.LineSegment(App.Vector(28.45713, 41.565269, 0), App.Vector(46.850266, 41.565269, 0)),  # 24
    Part.ArcOfCircle(Part.Circle(App.Vector(46.850266, 39.065269, 0), App.Vector(0, 0, 1), 2.5), math.radians(0), math.radians(90)),  # 25
    Part.LineSegment(App.Vector(49.350266, 39.065269, 0), App.Vector(49.350266, 27.445491, 0)),  # 26
    Part.ArcOfCircle(Part.Circle(App.Vector(46.850266, 27.445491, 0), App.Vector(0, 0, 1), 2.5), math.radians(-90), math.radians(0)),  # 27
    Part.LineSegment(App.Vector(46.850266, 24.945491, 0), App.Vector(28.45713, 24.945491, 0)),  # 28
    Part.ArcOfCircle(Part.Circle(App.Vector(28.45713, 27.445491, 0), App.Vector(0, 0, 1), 2.5), math.radians(180), math.radians(270)),  # 29
    Part.LineSegment(App.Vector(25.95713, 27.445491, 0), App.Vector(25.95713, 39.065269, 0)),  # 30
    Part.ArcOfCircle(Part.Circle(App.Vector(28.45713, 39.065269, 0), App.Vector(0, 0, 1), 2.5), math.radians(90), math.radians(180)),  # 31
    Part.LineSegment(App.Vector(41.5, -9.759475, 0), App.Vector(41.5, 7.535902, 0)),  # 32
    Part.ArcOfCircle(Part.Circle(App.Vector(44, 7.535902, 0), App.Vector(0, 0, 1), 2.5), math.radians(90), math.radians(180)),  # 33
    Part.LineSegment(App.Vector(44, 10.035902, 0), App.Vector(50, 10.035902, 0)),  # 34
    Part.ArcOfCircle(Part.Circle(App.Vector(50, 7.535902, 0), App.Vector(0, 0, 1), 2.5), math.radians(0), math.radians(90)),  # 35
    Part.LineSegment(App.Vector(52.5, 7.535902, 0), App.Vector(52.5, -9.759475, 0)),  # 36
    Part.ArcOfCircle(Part.Circle(App.Vector(50, -9.759475, 0), App.Vector(0, 0, 1), 2.5), math.radians(-90), math.radians(0)),  # 37
    Part.LineSegment(App.Vector(50, -12.259475, 0), App.Vector(44, -12.259475, 0)),  # 38
    Part.ArcOfCircle(Part.Circle(App.Vector(44, -9.759475, 0), App.Vector(0, 0, 1), 2.5), math.radians(180), math.radians(270)),  # 39
], False)
sketch11.addConstraint([
    Sketcher.Constraint("Tangent", 0, 2, 1, 2),
    Sketcher.Constraint("Tangent", 1, 1, 2, 1),
    Sketcher.Constraint("Tangent", 2, 2, 3, 2),
    Sketcher.Constraint("Tangent", 3, 1, 4, 1),
    Sketcher.Constraint("Tangent", 4, 2, 5, 2),
    Sketcher.Constraint("Tangent", 5, 1, 6, 1),
    Sketcher.Constraint("Tangent", 6, 2, 7, 2),
    Sketcher.Constraint("Tangent", 7, 1, 0, 1),
    Sketcher.Constraint("Tangent", 8, 2, 9, 2),
    Sketcher.Constraint("Tangent", 9, 1, 10, 1),
    Sketcher.Constraint("Tangent", 10, 2, 11, 2),
    Sketcher.Constraint("Tangent", 11, 1, 12, 1),
    Sketcher.Constraint("Tangent", 12, 2, 13, 2),
    Sketcher.Constraint("Tangent", 13, 1, 14, 1),
    Sketcher.Constraint("Tangent", 14, 2, 15, 2),
    Sketcher.Constraint("Tangent", 15, 1, 8, 1),
    Sketcher.Constraint("Tangent", 16, 2, 17, 2),
    Sketcher.Constraint("Tangent", 17, 1, 18, 1),
    Sketcher.Constraint("Tangent", 18, 2, 19, 2),
    Sketcher.Constraint("Tangent", 19, 1, 20, 1),
    Sketcher.Constraint("Tangent", 20, 2, 21, 2),
    Sketcher.Constraint("Tangent", 21, 1, 22, 1),
    Sketcher.Constraint("Tangent", 22, 2, 23, 2),
    Sketcher.Constraint("Tangent", 23, 1, 16, 1),
    Sketcher.Constraint("Tangent", 24, 2, 25, 2),
    Sketcher.Constraint("Tangent", 25, 1, 26, 1),
    Sketcher.Constraint("Tangent", 26, 2, 27, 2),
    Sketcher.Constraint("Tangent", 27, 1, 28, 1),
    Sketcher.Constraint("Tangent", 28, 2, 29, 2),
    Sketcher.Constraint("Tangent", 29, 1, 30, 1),
    Sketcher.Constraint("Tangent", 30, 2, 31, 2),
    Sketcher.Constraint("Tangent", 31, 1, 24, 1),
    Sketcher.Constraint("Tangent", 32, 2, 33, 2),
    Sketcher.Constraint("Tangent", 33, 1, 34, 1),
    Sketcher.Constraint("Tangent", 34, 2, 35, 2),
    Sketcher.Constraint("Tangent", 35, 1, 36, 1),
    Sketcher.Constraint("Tangent", 36, 2, 37, 2),
    Sketcher.Constraint("Tangent", 37, 1, 38, 1),
    Sketcher.Constraint("Tangent", 38, 2, 39, 2),
    Sketcher.Constraint("Tangent", 39, 1, 32, 1),
    Sketcher.Constraint("Horizontal", 0),
    Sketcher.Constraint("Vertical", 2),
    Sketcher.Constraint("Horizontal", 4),
    Sketcher.Constraint("Vertical", 6),
    Sketcher.Constraint("Horizontal", 8),
    Sketcher.Constraint("Vertical", 10),
    Sketcher.Constraint("Horizontal", 12),
    Sketcher.Constraint("Vertical", 14),
    Sketcher.Constraint("Vertical", 16),
    Sketcher.Constraint("Horizontal", 18),
    Sketcher.Constraint("Vertical", 20),
    Sketcher.Constraint("Horizontal", 22),
    Sketcher.Constraint("Horizontal", 24),
    Sketcher.Constraint("Vertical", 26),
    Sketcher.Constraint("Horizontal", 28),
    Sketcher.Constraint("Vertical", 30),
    Sketcher.Constraint("Vertical", 32),
    Sketcher.Constraint("Horizontal", 34),
    Sketcher.Constraint("Vertical", 36),
    Sketcher.Constraint("Horizontal", 38),
    Sketcher.Constraint("Equal", 1, 3),
    Sketcher.Constraint("Equal", 3, 5),
    Sketcher.Constraint("Equal", 5, 7),
    Sketcher.Constraint("Equal", 7, 9),
    Sketcher.Constraint("Equal", 9, 11),
    Sketcher.Constraint("Equal", 11, 13),
    Sketcher.Constraint("Equal", 13, 15),
    Sketcher.Constraint("Equal", 15, 17),
    Sketcher.Constraint("Equal", 17, 19),
    Sketcher.Constraint("Equal", 19, 21),
    Sketcher.Constraint("Equal", 21, 23),
    Sketcher.Constraint("Equal", 23, 25),
    Sketcher.Constraint("Equal", 25, 27),
    Sketcher.Constraint("Equal", 27, 29),
    Sketcher.Constraint("Equal", 29, 31),
    Sketcher.Constraint("Equal", 31, 33),
    Sketcher.Constraint("Equal", 33, 35),
    Sketcher.Constraint("Equal", 35, 37),
    Sketcher.Constraint("Equal", 37, 39),
    Sketcher.Constraint("Symmetric", 7, 3, 29, 3, -2),
    Sketcher.Constraint("Horizontal", 7, 3, 21, 3),
    Sketcher.Constraint("Horizontal", 5, 3, 25, 3),
    Sketcher.Constraint("Horizontal", 15, 3, 33, 3),
    Sketcher.Constraint("Horizontal", 13, 3, 37, 3),
    Sketcher.Constraint("Radius", 1, Q("2.5 mm")),
    Sketcher.Constraint("DistanceX", 34, 1, 34, 2, Q("6 mm")),
    Sketcher.Constraint("DistanceX", -1, 1, 33, 3, Q("44 mm")),
    Sketcher.Constraint("DistanceX", 5, 3, 17, 3, Q("10 mm")),
    Sketcher.Constraint("DistanceX", 21, 3, 29, 3, Q("10 mm")),
    Sketcher.Constraint("DistanceX", 8, 1, 8, 2, Q("18.539389 mm")),
    Sketcher.Constraint("DistanceX", 18, 1, 18, 2, Q("36.91426 mm")),
    Sketcher.Constraint("DistanceX", 13, 3, -1, 1, Q("48.675698 mm")),
    Sketcher.Constraint("DistanceX", 0, 2, 0, 1, Q("18.281924 mm")),
    Sketcher.Constraint("DistanceX", 24, 1, 24, 2, Q("18.393136 mm")),
    Sketcher.Constraint("DistanceY", 2, 1, 2, 2, Q("11.619778 mm")),
    Sketcher.Constraint("DistanceY", 10, 2, 10, 1, Q("17.295378 mm")),
    Sketcher.Constraint("DistanceY", 16, 1, 16, 2, Q("7.421268 mm")),
    Sketcher.Constraint("DistanceY", -1, 1, 1, 3, Q("27.445491 mm")),
    Sketcher.Constraint("DistanceY", 9, 3, 7, 3, Q("19.909589 mm")),
])
sketch11.setExpression("Constraints[84]", "Params.sketch11_radius")
sketch11.setExpression("Constraints[85]", "Params.sketch11_width")
pocket8 = body.newObject("PartDesign::Pocket", "Pocket007")
pocket8.Profile = sketch11
pocket8.setExpression("Length", "Params.pocket8_length")
pocket8.Reversed = True

doc.recompute()
